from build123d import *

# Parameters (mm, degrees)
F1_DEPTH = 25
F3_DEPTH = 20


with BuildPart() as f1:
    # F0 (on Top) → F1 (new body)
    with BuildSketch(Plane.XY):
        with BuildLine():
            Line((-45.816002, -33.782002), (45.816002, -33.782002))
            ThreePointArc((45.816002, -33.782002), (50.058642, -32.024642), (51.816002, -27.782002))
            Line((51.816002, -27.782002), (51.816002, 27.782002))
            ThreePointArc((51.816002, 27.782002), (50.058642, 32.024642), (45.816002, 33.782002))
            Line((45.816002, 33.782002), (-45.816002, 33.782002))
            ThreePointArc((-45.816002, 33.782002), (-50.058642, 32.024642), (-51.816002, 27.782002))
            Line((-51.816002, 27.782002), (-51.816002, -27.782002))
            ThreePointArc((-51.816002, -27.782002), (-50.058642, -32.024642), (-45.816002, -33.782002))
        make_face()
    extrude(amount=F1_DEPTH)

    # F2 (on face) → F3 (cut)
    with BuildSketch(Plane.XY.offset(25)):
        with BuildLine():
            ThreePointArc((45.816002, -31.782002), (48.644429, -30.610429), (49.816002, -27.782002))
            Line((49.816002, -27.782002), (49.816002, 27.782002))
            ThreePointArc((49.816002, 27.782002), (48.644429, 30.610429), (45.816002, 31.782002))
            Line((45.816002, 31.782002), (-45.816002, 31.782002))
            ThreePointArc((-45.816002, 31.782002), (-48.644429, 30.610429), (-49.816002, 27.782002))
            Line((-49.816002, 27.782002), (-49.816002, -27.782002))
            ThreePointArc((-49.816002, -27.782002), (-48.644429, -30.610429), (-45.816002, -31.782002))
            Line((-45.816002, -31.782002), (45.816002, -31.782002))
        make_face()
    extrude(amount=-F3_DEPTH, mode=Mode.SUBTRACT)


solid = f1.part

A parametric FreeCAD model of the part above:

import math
import FreeCAD as App
import Part
import Sketcher

V = App.Vector
Q = App.Units.Quantity

doc = App.newDocument("Part")
body = doc.addObject("PartDesign::Body", "Body")

sketch1 = body.newObject("Sketcher::SketchObject", "Sketch")
sketch1.AttachmentSupport = (doc.getObject("XY_Plane"), [""])
sketch1.MapMode = "FlatFace"
sketch1.addGeometry(Part.LineSegment(V(-45.816002, -33.782002, 0), V(45.816002, -33.782002, 0)), False)
sketch1.addGeometry(Part.ArcOfCircle(Part.Circle(V(45.816, -27.782, 0), V(0, 0, 1), 6.000002), math.radians(-89.999978), math.radians(-0.000022)), False)
sketch1.addGeometry(Part.LineSegment(V(51.816002, -27.782002, 0), V(51.816002, 27.782002, 0)), False)
sketch1.addGeometry(Part.ArcOfCircle(Part.Circle(V(45.816, 27.782, 0), V(0, 0, 1), 6.000002), math.radians(0.000022), math.radians(89.999978)), False)
sketch1.addGeometry(Part.LineSegment(V(45.816002, 33.782002, 0), V(-45.816002, 33.782002, 0)), False)
sketch1.addGeometry(Part.ArcOfCircle(Part.Circle(V(-45.816, 27.782, 0), V(0, 0, 1), 6.000002), math.radians(90.000022), math.radians(179.999978)), False)
sketch1.addGeometry(Part.LineSegment(V(-51.816002, 27.782002, 0), V(-51.816002, -27.782002, 0)), False)
sketch1.addGeometry(Part.ArcOfCircle(Part.Circle(V(-45.816, -27.782, 0), V(0, 0, 1), 6.000002), math.radians(-179.999978), math.radians(-90.000022)), False)
sketch1.addConstraint(Sketcher.Constraint("Tangent", 0, 2, 1, 1))
sketch1.addConstraint(Sketcher.Constraint("Tangent", 1, 2, 2, 1))
sketch1.addConstraint(Sketcher.Constraint("Tangent", 2, 2, 3, 1))
sketch1.addConstraint(Sketcher.Constraint("Tangent", 3, 2, 4, 1))
sketch1.addConstraint(Sketcher.Constraint("Tangent", 4, 2, 5, 1))
sketch1.addConstraint(Sketcher.Constraint("Tangent", 5, 2, 6, 1))
sketch1.addConstraint(Sketcher.Constraint("Tangent", 6, 2, 7, 1))
sketch1.addConstraint(Sketcher.Constraint("Tangent", 7, 2, 0, 1))
sketch1.addConstraint(Sketcher.Constraint("Horizontal", 0))
sketch1.addConstraint(Sketcher.Constraint("Vertical", 2))
sketch1.addConstraint(Sketcher.Constraint("Horizontal", 4))
sketch1.addConstraint(Sketcher.Constraint("Vertical", 6))
sketch1.addConstraint(Sketcher.Constraint("Equal", 1, 3))
sketch1.addConstraint(Sketcher.Constraint("Equal", 3, 5))
sketch1.addConstraint(Sketcher.Constraint("Equal", 5, 7))
sketch1.addConstraint(Sketcher.Constraint("Symmetric", 1, 3, 5, 3, -1, 1))
sketch1.addConstraint(Sketcher.Constraint("DistanceX", 0, 2, 1, 2, Q("6 mm")))
sketch1.addConstraint(Sketcher.Constraint("DistanceX", -1, 1, 1, 3, Q("45.816 mm")))
sketch1.addConstraint(Sketcher.Constraint("DistanceY", 1, 3, -1, 1, Q("27.782 mm")))
pad1 = body.newObject("PartDesign::Pad", "Pad")
pad1.Profile = sketch1
pad1.Length = 25

sketch2 = body.newObject("Sketcher::SketchObject", "Sketch001")
sketch2.AttachmentSupport = (doc.getObject("XY_Plane"), [""])
sketch2.MapMode = "FlatFace"
sketch2.AttachmentOffset = App.Placement(V(0, 0, 25), App.Rotation())
sketch2.addGeometry(Part.ArcOfCircle(Part.Circle(V(45.816002, -27.782002, 0), V(0, 0, 1), 4), math.radians(-89.999994), math.radians(-0.000006)), False)
sketch2.addGeometry(Part.LineSegment(V(49.816002, -27.782002, 0), V(49.816002, 27.782002, 0)), False)
sketch2.addGeometry(Part.ArcOfCircle(Part.Circle(V(45.816002, 27.782002, 0), V(0, 0, 1), 4), math.radians(0.000006), math.radians(89.999994)), False)
sketch2.addGeometry(Part.LineSegment(V(45.816002, 31.782002, 0), V(-45.816002, 31.782002, 0)), False)
sketch2.addGeometry(Part.ArcOfCircle(Part.Circle(V(-45.816002, 27.782002, 0), V(0, 0, 1), 4), math.radians(90.000006), math.radians(179.999994)), False)
sketch2.addGeometry(Part.LineSegment(V(-49.816002, 27.782002, 0), V(-49.816002, -27.782002, 0)), False)
sketch2.addGeometry(Part.ArcOfCircle(Part.Circle(V(-45.816002, -27.782002, 0), V(0, 0, 1), 4), math.radians(-179.999994), math.radians(-90.000006)), False)
sketch2.addGeometry(Part.LineSegment(V(-45.816002, -31.782002, 0), V(45.816002, -31.782002, 0)), False)
sketch2.addConstraint(Sketcher.Constraint("Tangent", 0, 2, 1, 1))
sketch2.addConstraint(Sketcher.Constraint("Tangent", 1, 2, 2, 1))
sketch2.addConstraint(Sketcher.Constraint("Tangent", 2, 2, 3, 1))
sketch2.addConstraint(Sketcher.Constraint("Tangent", 3, 2, 4, 1))
sketch2.addConstraint(Sketcher.Constraint("Tangent", 4, 2, 5, 1))
sketch2.addConstraint(Sketcher.Constraint("Tangent", 5, 2, 6, 1))
sketch2.addConstraint(Sketcher.Constraint("Tangent", 6, 2, 7, 1))
sketch2.addConstraint(Sketcher.Constraint("Tangent", 7, 2, 0, 1))
sketch2.addConstraint(Sketcher.Constraint("Vertical", 1))
sketch2.addConstraint(Sketcher.Constraint("Horizontal", 3))
sketch2.addConstraint(Sketcher.Constraint("Vertical", 5))
sketch2.addConstraint(Sketcher.Constraint("Horizontal", 7))
sketch2.addConstraint(Sketcher.Constraint("Equal", 0, 2))
sketch2.addConstraint(Sketcher.Constraint("Equal", 2, 4))
sketch2.addConstraint(Sketcher.Constraint("Equal", 4, 6))
sketch2.addConstraint(Sketcher.Constraint("Symmetric", 0, 3, 4, 3, -1, 1))
sketch2.addConstraint(Sketcher.Constraint("Radius", 0, Q("4 mm")))
sketch2.addConstraint(Sketcher.Constraint("DistanceX", -1, 1, 0, 3, Q("45.816002 mm")))
sketch2.addConstraint(Sketcher.Constraint("DistanceY", 0, 3, -1, 1, Q("27.782002 mm")))
pocket1 = body.newObject("PartDesign::Pocket", "Pocket")
pocket1.Profile = sketch2
pocket1.Length = 20

doc.recompute()
